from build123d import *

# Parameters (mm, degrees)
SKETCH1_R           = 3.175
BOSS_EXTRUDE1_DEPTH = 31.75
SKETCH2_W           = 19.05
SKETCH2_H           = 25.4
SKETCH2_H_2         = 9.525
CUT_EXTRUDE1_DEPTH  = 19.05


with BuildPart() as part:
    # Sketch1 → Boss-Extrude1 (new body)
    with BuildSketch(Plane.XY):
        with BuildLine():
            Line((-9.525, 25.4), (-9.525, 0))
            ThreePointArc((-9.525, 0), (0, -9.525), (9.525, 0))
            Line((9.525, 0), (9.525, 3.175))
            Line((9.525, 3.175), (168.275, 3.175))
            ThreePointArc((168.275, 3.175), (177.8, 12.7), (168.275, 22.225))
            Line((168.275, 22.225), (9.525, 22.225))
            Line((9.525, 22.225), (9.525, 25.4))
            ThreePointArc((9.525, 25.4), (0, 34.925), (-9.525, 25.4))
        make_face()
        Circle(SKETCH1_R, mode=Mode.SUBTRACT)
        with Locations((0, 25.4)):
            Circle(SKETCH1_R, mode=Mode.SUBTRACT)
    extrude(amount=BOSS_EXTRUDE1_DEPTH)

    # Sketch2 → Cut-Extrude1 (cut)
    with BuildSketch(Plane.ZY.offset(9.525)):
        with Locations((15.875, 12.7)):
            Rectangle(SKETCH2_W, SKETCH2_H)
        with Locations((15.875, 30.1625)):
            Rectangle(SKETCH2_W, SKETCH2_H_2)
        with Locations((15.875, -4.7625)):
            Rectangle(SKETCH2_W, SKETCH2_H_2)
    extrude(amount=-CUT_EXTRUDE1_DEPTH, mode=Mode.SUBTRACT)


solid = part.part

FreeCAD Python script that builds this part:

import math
import FreeCAD as App
import Part
import Sketcher
from FreeCAD import Vector
Q = App.Units.Quantity

doc = App.newDocument("Part")
params = doc.addObject("Spreadsheet::Sheet", "Params")
for row, (alias, value) in enumerate([
    ("sketch1_diameter", "0.25 in"),
    ("sketch1_height", "1 in"),
    ("sketch1_radius", "0.375 in"),
    ("pad1_length", "1.25 in"),
    ("sketch2_width", "1.75 in"),
    ("sketch2_height", "0.75 in"),
    ("pocket1_length", "0.75 in"),
], start=1):
    params.set(f"A{row}", alias)
    params.set(f"B{row}", "=" + value)
    params.setAlias(f"B{row}", alias)

body = doc.addObject("PartDesign::Body", "Body")

sketch1 = doc.addObject("Sketcher::SketchObject", "Sketch")
body.addObject(sketch1)
sketch1.AttachmentSupport = (doc.XY_Plane, [""])
sketch1.MapMode = "FlatFace"
sketch1.addGeometry([
    Part.LineSegment(Vector(-9.525, 25.4, 0), Vector(-9.525, 0, 0)),
    Part.ArcOfCircle(Part.Circle(Vector(0, 0, 0), Vector(0, 0, 1), 9.525), math.radians(180), math.radians(360)),
    Part.LineSegment(Vector(9.525, 0, 0), Vector(9.525, 3.175, 0)),
    Part.LineSegment(Vector(9.525, 3.175, 0), Vector(168.275, 3.175, 0)),
    Part.ArcOfCircle(Part.Circle(Vector(168.275, 12.7, 0), Vector(0, 0, 1), 9.525), math.radians(-90), math.radians(90)),
    Part.LineSegment(Vector(168.275, 22.225, 0), Vector(9.525, 22.225, 0)),
    Part.LineSegment(Vector(9.525, 22.225, 0), Vector(9.525, 25.4, 0)),
    Part.ArcOfCircle(Part.Circle(Vector(0, 25.4, 0), Vector(0, 0, 1), 9.525), math.radians(0), math.radians(180)),
    Part.Circle(Vector(0, 0, 0), Vector(0, 0, 1), 3.175),
    Part.Circle(Vector(0, 25.4, 0), Vector(0, 0, 1), 3.175),
], False)
sketch1.addConstraint([
    Sketcher.Constraint("Tangent", 0, 2, 1, 1),
    Sketcher.Constraint("Tangent", 1, 2, 2, 1),
    Sketcher.Constraint("Coincident", 2, 2, 3, 1),
    Sketcher.Constraint("Tangent", 3, 2, 4, 1),
    Sketcher.Constraint("Tangent", 4, 2, 5, 1),
    Sketcher.Constraint("Coincident", 5, 2, 6, 1),
    Sketcher.Constraint("Tangent", 6, 2, 7, 1),
    Sketcher.Constraint("Tangent", 7, 2, 0, 1),
    Sketcher.Constraint("Vertical", 0),
    Sketcher.Constraint("Vertical", 2),
    Sketcher.Constraint("Horizontal", 3),
    Sketcher.Constraint("Horizontal", 5),
    Sketcher.Constraint("Vertical", 6),
    Sketcher.Constraint("Coincident", 1, 3, -1, 1),
    Sketcher.Constraint("Coincident", 8, 3, -1, 1),
    Sketcher.Constraint("Coincident", 9, 3, 7, 3),
    Sketcher.Constraint("Equal", 1, 4),
    Sketcher.Constraint("Equal", 4, 7),
    Sketcher.Constraint("Equal", 8, 9),
    Sketcher.Constraint("Equal", 2, 6),
    Sketcher.Constraint("Diameter", 8, Q("0.25 in")),
    Sketcher.Constraint("DistanceY", 0, 2, 0, 1, Q("1 in")),
    Sketcher.Constraint("Radius", 1, Q("0.375 in")),
    Sketcher.Constraint("DistanceX", 0, 2, 4, 3, Q("7 in")),
])
sketch1.setExpression("Constraints[20]", "Params.sketch1_diameter")
sketch1.setExpression("Constraints[21]", "Params.sketch1_height")
sketch1.setExpression("Constraints[22]", "Params.sketch1_radius")
pad1 = doc.addObject("PartDesign::Pad", "Pad")
body.addObject(pad1)
pad1.Profile = sketch1
pad1.setExpression("Length", "Params.pad1_length")

sketch2 = doc.addObject("Sketcher::SketchObject", "Sketch001")
body.addObject(sketch2)
sketch2.AttachmentSupport = (doc.YZ_Plane, [""])
sketch2.MapMode = "FlatFace"
sketch2.AttachmentOffset = App.Placement(Vector(0, 0, -0.375 * 25.4), App.Rotation())
sketch2.addGeometry([
    Part.LineSegment(Vector(34.925, 25.4, 0), Vector(34.925, 6.35, 0)),
    Part.LineSegment(Vector(34.925, 6.35, 0), Vector(-9.525, 6.35, 0)),
    Part.LineSegment(Vector(-9.525, 6.35, 0), Vector(-9.525, 25.4, 0)),
    Part.LineSegment(Vector(-9.525, 25.4, 0), Vector(34.925, 25.4, 0)),
], False)
sketch2.addConstraint([
    Sketcher.Constraint("Coincident", 0, 2, 1, 1),
    Sketcher.Constraint("Coincident", 1, 2, 2, 1),
    Sketcher.Constraint("Coincident", 2, 2, 3, 1),
    Sketcher.Constraint("Coincident", 3, 2, 0, 1),
    Sketcher.Constraint("Vertical", 0),
    Sketcher.Constraint("Horizontal", 1),
    Sketcher.Constraint("Vertical", 2),
    Sketcher.Constraint("Horizontal", 3),
    Sketcher.Constraint("DistanceY", -1, 1, 2, 2, Q("1 in")),
    Sketcher.Constraint("DistanceX", 1, 2, 1, 1, Q("1.75 in")),
    Sketcher.Constraint("DistanceY", 0, 2, 0, 1, Q("0.75 in")),
    Sketcher.Constraint("DistanceX", -1, 1, 0, 2, Q("1.375 in")),
])
sketch2.setExpression("Constraints[9]", "Params.sketch2_width")
sketch2.setExpression("Constraints[10]", "Params.sketch2_height")
pocket1 = doc.addObject("PartDesign::Pocket", "Pocket")
body.addObject(pocket1)
pocket1.Profile = sketch2
pocket1.setExpression("Length", "Params.pocket1_length")
pocket1.Reversed = True

doc.recompute()
